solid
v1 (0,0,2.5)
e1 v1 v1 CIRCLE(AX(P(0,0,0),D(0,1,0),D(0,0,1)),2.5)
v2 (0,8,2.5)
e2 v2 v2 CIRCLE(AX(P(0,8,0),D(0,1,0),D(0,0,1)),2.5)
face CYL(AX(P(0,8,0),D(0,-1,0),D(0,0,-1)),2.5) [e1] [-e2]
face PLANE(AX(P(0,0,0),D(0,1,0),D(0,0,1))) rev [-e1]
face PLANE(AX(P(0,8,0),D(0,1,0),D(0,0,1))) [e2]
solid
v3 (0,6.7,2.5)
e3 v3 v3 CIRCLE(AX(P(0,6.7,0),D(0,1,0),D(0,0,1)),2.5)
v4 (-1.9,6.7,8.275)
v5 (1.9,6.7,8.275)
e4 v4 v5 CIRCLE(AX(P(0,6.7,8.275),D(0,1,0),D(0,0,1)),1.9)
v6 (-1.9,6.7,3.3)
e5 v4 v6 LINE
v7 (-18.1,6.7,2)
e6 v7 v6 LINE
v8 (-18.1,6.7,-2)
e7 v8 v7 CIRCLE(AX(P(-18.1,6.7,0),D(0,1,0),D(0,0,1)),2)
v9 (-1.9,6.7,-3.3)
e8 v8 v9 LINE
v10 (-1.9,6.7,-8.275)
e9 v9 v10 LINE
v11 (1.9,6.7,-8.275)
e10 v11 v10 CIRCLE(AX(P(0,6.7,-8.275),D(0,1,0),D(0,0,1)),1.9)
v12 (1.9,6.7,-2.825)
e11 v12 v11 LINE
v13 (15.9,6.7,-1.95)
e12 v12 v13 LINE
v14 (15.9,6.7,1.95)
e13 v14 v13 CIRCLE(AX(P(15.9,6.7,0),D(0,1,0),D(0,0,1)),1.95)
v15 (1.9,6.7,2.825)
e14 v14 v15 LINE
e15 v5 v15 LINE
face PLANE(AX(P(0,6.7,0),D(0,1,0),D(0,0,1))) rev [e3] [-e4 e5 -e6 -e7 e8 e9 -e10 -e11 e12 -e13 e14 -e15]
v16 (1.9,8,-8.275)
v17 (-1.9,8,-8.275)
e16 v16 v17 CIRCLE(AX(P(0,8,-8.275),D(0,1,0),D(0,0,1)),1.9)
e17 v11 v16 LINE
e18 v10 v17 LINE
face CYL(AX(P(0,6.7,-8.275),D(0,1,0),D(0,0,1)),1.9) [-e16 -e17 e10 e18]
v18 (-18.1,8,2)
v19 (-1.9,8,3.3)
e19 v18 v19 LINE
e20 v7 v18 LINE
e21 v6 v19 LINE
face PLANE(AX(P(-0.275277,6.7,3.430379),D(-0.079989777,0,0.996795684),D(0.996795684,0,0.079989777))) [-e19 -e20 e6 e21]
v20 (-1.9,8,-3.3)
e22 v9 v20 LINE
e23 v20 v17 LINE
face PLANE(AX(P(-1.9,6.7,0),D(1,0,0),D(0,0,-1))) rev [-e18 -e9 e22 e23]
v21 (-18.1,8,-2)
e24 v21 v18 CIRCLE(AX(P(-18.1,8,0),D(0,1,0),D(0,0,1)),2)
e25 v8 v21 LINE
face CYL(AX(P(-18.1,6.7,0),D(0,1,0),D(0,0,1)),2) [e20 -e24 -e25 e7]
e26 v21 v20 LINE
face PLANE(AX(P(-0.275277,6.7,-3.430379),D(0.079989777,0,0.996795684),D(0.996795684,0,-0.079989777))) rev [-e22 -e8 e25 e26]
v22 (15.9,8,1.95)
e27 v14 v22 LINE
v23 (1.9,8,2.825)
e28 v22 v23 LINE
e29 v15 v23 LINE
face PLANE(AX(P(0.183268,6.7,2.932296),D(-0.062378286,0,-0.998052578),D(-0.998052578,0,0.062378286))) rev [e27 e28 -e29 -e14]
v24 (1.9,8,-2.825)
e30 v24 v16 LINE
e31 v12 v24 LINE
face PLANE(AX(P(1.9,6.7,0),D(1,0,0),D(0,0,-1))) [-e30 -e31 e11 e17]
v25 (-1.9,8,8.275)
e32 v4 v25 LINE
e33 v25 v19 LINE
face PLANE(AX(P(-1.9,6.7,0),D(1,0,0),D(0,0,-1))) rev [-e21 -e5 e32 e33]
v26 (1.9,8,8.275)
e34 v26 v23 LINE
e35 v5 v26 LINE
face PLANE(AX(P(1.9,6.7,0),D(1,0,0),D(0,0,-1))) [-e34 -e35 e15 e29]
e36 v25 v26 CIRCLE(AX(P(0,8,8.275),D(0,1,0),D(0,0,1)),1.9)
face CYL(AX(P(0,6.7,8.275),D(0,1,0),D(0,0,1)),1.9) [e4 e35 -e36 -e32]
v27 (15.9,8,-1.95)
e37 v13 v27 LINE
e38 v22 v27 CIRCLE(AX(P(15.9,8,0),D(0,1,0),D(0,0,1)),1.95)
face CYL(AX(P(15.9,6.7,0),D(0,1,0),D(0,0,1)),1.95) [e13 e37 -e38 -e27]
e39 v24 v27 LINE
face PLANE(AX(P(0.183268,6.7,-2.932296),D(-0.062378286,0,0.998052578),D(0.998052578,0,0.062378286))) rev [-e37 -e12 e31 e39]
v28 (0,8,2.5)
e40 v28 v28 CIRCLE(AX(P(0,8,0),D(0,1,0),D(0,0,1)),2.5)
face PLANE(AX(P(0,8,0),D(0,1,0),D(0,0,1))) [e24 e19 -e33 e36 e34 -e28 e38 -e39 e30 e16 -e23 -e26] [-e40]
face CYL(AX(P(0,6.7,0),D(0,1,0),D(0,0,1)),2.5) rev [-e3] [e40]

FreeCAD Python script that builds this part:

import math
import FreeCAD as App
import Part
import Sketcher

doc = App.newDocument("Part")
body = doc.addObject("PartDesign::Body", "Body")

sketch1 = doc.addObject("Sketcher::SketchObject", "Sketch")
body.addObject(sketch1)
sketch1.AttachmentSupport = (doc.XZ_Plane, [""])
sketch1.MapMode = "FlatFace"
sketch1.addGeometry(Part.Circle(App.Vector(0, 0, 0), App.Vector(0, 0, 1), 2.5), False)
sketch1.addConstraint(Sketcher.Constraint("Coincident", 0, 3, -1, 1))
sketch1.addConstraint(Sketcher.Constraint("Diameter", 0, 5.0))
pad1 = doc.addObject("PartDesign::Pad", "Pad")
body.addObject(pad1)
pad1.Profile = sketch1
pad1.Length = 8
pad1.Reversed = True
body2 = doc.addObject("PartDesign::Body", "Body001")

sketch2 = doc.addObject("Sketcher::SketchObject", "Sketch001")
body2.addObject(sketch2)
sketch2.AttachmentSupport = (doc.getObject("XZ_Plane001"), [""])
sketch2.MapMode = "FlatFace"
sketch2.AttachmentOffset = App.Placement(App.Vector(0, 0, -8), App.Rotation())
sketch2.addGeometry(Part.LineSegment(App.Vector(1.9, -2.8, 0), App.Vector(1.9, -8.3, 0)), False)
sketch2.addGeometry(Part.ArcOfCircle(Part.Circle(App.Vector(0, -8.3, 0), App.Vector(0, 0, 1), 1.9), math.radians(180), math.radians(360)), False)
sketch2.addGeometry(Part.LineSegment(App.Vector(-1.9, -8.3, 0), App.Vector(-1.9, -3.3, 0)), False)
sketch2.addGeometry(Part.LineSegment(App.Vector(-1.9, -3.3, 0), App.Vector(-18.1, -2, 0)), False)
sketch2.addGeometry(Part.ArcOfCircle(Part.Circle(App.Vector(-18.1, 0, 0), App.Vector(0, 0, 1), 2), math.radians(90), math.radians(270)), False)
sketch2.addGeometry(Part.LineSegment(App.Vector(-18.1, 2, 0), App.Vector(-1.9, 3.3, 0)), False)
sketch2.addGeometry(Part.LineSegment(App.Vector(-1.9, 3.3, 0), App.Vector(-1.9, 8.3, 0)), False)
sketch2.addGeometry(Part.ArcOfCircle(Part.Circle(App.Vector(0, 8.3, 0), App.Vector(0, 0, 1), 1.9), math.radians(0), math.radians(180)), False)
sketch2.addGeometry(Part.LineSegment(App.Vector(1.9, 8.3, 0), App.Vector(1.9, 2.8, 0)), False)
sketch2.addGeometry(Part.LineSegment(App.Vector(1.9, 2.8, 0), App.Vector(15.9, 1.9, 0)), False)
sketch2.addGeometry(Part.ArcOfCircle(Part.Circle(App.Vector(15.9, 0, 0), App.Vector(0, 0, 1), 1.9), math.radians(-90), math.radians(90)), False)
sketch2.addGeometry(Part.LineSegment(App.Vector(15.9, -1.9, 0), App.Vector(1.9, -2.8, 0)), False)
sketch2.addGeometry(Part.ArcOfCircle(Part.Circle(App.Vector(0, 0, 0), App.Vector(0, 0, 1), 2.5), math.radians(41), math.radians(139)), False)
sketch2.addGeometry(Part.ArcOfCircle(Part.Circle(App.Vector(0, 0, 0), App.Vector(0, 0, 1), 2.5), math.radians(139), math.radians(221)), False)
sketch2.addGeometry(Part.ArcOfCircle(Part.Circle(App.Vector(0, 0, 0), App.Vector(0, 0, 1), 2.5), math.radians(-139), math.radians(-41)), False)
sketch2.addGeometry(Part.ArcOfCircle(Part.Circle(App.Vector(0, 0, 0), App.Vector(0, 0, 1), 2.5), math.radians(-41), math.radians(0)), False)
sketch2.addGeometry(Part.ArcOfCircle(Part.Circle(App.Vector(0, 0, 0), App.Vector(0, 0, 1), 2.5), math.radians(0), math.radians(41)), False)
sketch2.addConstraint(Sketcher.Constraint("Tangent", 0, 2, 1, 2))
sketch2.addConstraint(Sketcher.Constraint("Tangent", 1, 1, 2, 1))
sketch2.addConstraint(Sketcher.Constraint("Coincident", 2, 2, 3, 1))
sketch2.addConstraint(Sketcher.Constraint("Coincident", 3, 2, 4, 2))
sketch2.addConstraint(Sketcher.Constraint("Coincident", 4, 1, 5, 1))
sketch2.addConstraint(Sketcher.Constraint("Coincident", 5, 2, 6, 1))
sketch2.addConstraint(Sketcher.Constraint("Tangent", 6, 2, 7, 2))
sketch2.addConstraint(Sketcher.Constraint("Tangent", 7, 1, 8, 1))
sketch2.addConstraint(Sketcher.Constraint("Coincident", 8, 2, 9, 1))
sketch2.addConstraint(Sketcher.Constraint("Coincident", 9, 2, 10, 2))
sketch2.addConstraint(Sketcher.Constraint("Coincident", 10, 1, 11, 1))
sketch2.addConstraint(Sketcher.Constraint("Coincident", 11, 2, 0, 1))
sketch2.addConstraint(Sketcher.Constraint("Tangent", 12, 2, 13, 1))
sketch2.addConstraint(Sketcher.Constraint("Tangent", 13, 2, 14, 1))
sketch2.addConstraint(Sketcher.Constraint("Tangent", 14, 2, 15, 1))
sketch2.addConstraint(Sketcher.Constraint("Tangent", 15, 2, 16, 1))
sketch2.addConstraint(Sketcher.Constraint("Tangent", 16, 2, 12, 1))
sketch2.addConstraint(Sketcher.Constraint("Vertical", 0))
sketch2.addConstraint(Sketcher.Constraint("Vertical", 2))
sketch2.addConstraint(Sketcher.Constraint("Vertical", 6))
sketch2.addConstraint(Sketcher.Constraint("Vertical", 8))
sketch2.addConstraint(Sketcher.Constraint("Coincident", 12, 3, -1, 1))
sketch2.addConstraint(Sketcher.Constraint("Coincident", 14, 3, -1, 1))
sketch2.addConstraint(Sketcher.Constraint("Equal", 1, 7))
sketch2.addConstraint(Sketcher.Constraint("Symmetric", 1, 3, 7, 3, -1, 1))
sketch2.addConstraint(Sketcher.Constraint("Symmetric", 3, 2, 4, 1, -1))
sketch2.addConstraint(Sketcher.Constraint("Symmetric", 2, 2, 5, 2, -1))
sketch2.addConstraint(Sketcher.Constraint("Symmetric", 9, 2, 10, 1, -1))
sketch2.addConstraint(Sketcher.Constraint("PointOnObject", 15, 2, -1))
sketch2.addConstraint(Sketcher.Constraint("Horizontal", 13, 2, 14, 2))
sketch2.addConstraint(Sketcher.Constraint("Horizontal", 12, 2, 16, 2))
sketch2.addConstraint(Sketcher.Constraint("Vertical", 4, 3, 3, 2))
sketch2.addConstraint(Sketcher.Constraint("Vertical", 10, 3, 9, 2))
sketch2.addConstraint(Sketcher.Constraint("Vertical", 6, 2, 12, 2))
sketch2.addConstraint(Sketcher.Constraint("Vertical", 12, 2, 13, 2))
sketch2.addConstraint(Sketcher.Constraint("Equal", 0, 8))
sketch2.addConstraint(Sketcher.Constraint("Radius", 4, 2.0))
sketch2.addConstraint(Sketcher.Constraint("Radius", 1, 1.9))
sketch2.addConstraint(Sketcher.Constraint("Radius", 12, 2.5))
sketch2.addConstraint(Sketcher.Constraint("Radius", 10, 1.95))
sketch2.addConstraint(Sketcher.Constraint("DistanceX", 4, 3, 10, 3, 34.0))
sketch2.addConstraint(Sketcher.Constraint("DistanceX", 8, 2, 9, 2, 14.0))
sketch2.addConstraint(Sketcher.Constraint("DistanceY", 0, 2, 0, 1, 5.45))
sketch2.addConstraint(Sketcher.Constraint("DistanceY", 2, 2, -1, 1, 3.3))
sketch2.addConstraint(Sketcher.Constraint("DistanceY", 2, 1, 2, 2, 4.975))
pad2 = doc.addObject("PartDesign::Pad", "Pad001")
body2.addObject(pad2)
pad2.Profile = sketch2
pad2.Length = 1.3

doc.recompute()
